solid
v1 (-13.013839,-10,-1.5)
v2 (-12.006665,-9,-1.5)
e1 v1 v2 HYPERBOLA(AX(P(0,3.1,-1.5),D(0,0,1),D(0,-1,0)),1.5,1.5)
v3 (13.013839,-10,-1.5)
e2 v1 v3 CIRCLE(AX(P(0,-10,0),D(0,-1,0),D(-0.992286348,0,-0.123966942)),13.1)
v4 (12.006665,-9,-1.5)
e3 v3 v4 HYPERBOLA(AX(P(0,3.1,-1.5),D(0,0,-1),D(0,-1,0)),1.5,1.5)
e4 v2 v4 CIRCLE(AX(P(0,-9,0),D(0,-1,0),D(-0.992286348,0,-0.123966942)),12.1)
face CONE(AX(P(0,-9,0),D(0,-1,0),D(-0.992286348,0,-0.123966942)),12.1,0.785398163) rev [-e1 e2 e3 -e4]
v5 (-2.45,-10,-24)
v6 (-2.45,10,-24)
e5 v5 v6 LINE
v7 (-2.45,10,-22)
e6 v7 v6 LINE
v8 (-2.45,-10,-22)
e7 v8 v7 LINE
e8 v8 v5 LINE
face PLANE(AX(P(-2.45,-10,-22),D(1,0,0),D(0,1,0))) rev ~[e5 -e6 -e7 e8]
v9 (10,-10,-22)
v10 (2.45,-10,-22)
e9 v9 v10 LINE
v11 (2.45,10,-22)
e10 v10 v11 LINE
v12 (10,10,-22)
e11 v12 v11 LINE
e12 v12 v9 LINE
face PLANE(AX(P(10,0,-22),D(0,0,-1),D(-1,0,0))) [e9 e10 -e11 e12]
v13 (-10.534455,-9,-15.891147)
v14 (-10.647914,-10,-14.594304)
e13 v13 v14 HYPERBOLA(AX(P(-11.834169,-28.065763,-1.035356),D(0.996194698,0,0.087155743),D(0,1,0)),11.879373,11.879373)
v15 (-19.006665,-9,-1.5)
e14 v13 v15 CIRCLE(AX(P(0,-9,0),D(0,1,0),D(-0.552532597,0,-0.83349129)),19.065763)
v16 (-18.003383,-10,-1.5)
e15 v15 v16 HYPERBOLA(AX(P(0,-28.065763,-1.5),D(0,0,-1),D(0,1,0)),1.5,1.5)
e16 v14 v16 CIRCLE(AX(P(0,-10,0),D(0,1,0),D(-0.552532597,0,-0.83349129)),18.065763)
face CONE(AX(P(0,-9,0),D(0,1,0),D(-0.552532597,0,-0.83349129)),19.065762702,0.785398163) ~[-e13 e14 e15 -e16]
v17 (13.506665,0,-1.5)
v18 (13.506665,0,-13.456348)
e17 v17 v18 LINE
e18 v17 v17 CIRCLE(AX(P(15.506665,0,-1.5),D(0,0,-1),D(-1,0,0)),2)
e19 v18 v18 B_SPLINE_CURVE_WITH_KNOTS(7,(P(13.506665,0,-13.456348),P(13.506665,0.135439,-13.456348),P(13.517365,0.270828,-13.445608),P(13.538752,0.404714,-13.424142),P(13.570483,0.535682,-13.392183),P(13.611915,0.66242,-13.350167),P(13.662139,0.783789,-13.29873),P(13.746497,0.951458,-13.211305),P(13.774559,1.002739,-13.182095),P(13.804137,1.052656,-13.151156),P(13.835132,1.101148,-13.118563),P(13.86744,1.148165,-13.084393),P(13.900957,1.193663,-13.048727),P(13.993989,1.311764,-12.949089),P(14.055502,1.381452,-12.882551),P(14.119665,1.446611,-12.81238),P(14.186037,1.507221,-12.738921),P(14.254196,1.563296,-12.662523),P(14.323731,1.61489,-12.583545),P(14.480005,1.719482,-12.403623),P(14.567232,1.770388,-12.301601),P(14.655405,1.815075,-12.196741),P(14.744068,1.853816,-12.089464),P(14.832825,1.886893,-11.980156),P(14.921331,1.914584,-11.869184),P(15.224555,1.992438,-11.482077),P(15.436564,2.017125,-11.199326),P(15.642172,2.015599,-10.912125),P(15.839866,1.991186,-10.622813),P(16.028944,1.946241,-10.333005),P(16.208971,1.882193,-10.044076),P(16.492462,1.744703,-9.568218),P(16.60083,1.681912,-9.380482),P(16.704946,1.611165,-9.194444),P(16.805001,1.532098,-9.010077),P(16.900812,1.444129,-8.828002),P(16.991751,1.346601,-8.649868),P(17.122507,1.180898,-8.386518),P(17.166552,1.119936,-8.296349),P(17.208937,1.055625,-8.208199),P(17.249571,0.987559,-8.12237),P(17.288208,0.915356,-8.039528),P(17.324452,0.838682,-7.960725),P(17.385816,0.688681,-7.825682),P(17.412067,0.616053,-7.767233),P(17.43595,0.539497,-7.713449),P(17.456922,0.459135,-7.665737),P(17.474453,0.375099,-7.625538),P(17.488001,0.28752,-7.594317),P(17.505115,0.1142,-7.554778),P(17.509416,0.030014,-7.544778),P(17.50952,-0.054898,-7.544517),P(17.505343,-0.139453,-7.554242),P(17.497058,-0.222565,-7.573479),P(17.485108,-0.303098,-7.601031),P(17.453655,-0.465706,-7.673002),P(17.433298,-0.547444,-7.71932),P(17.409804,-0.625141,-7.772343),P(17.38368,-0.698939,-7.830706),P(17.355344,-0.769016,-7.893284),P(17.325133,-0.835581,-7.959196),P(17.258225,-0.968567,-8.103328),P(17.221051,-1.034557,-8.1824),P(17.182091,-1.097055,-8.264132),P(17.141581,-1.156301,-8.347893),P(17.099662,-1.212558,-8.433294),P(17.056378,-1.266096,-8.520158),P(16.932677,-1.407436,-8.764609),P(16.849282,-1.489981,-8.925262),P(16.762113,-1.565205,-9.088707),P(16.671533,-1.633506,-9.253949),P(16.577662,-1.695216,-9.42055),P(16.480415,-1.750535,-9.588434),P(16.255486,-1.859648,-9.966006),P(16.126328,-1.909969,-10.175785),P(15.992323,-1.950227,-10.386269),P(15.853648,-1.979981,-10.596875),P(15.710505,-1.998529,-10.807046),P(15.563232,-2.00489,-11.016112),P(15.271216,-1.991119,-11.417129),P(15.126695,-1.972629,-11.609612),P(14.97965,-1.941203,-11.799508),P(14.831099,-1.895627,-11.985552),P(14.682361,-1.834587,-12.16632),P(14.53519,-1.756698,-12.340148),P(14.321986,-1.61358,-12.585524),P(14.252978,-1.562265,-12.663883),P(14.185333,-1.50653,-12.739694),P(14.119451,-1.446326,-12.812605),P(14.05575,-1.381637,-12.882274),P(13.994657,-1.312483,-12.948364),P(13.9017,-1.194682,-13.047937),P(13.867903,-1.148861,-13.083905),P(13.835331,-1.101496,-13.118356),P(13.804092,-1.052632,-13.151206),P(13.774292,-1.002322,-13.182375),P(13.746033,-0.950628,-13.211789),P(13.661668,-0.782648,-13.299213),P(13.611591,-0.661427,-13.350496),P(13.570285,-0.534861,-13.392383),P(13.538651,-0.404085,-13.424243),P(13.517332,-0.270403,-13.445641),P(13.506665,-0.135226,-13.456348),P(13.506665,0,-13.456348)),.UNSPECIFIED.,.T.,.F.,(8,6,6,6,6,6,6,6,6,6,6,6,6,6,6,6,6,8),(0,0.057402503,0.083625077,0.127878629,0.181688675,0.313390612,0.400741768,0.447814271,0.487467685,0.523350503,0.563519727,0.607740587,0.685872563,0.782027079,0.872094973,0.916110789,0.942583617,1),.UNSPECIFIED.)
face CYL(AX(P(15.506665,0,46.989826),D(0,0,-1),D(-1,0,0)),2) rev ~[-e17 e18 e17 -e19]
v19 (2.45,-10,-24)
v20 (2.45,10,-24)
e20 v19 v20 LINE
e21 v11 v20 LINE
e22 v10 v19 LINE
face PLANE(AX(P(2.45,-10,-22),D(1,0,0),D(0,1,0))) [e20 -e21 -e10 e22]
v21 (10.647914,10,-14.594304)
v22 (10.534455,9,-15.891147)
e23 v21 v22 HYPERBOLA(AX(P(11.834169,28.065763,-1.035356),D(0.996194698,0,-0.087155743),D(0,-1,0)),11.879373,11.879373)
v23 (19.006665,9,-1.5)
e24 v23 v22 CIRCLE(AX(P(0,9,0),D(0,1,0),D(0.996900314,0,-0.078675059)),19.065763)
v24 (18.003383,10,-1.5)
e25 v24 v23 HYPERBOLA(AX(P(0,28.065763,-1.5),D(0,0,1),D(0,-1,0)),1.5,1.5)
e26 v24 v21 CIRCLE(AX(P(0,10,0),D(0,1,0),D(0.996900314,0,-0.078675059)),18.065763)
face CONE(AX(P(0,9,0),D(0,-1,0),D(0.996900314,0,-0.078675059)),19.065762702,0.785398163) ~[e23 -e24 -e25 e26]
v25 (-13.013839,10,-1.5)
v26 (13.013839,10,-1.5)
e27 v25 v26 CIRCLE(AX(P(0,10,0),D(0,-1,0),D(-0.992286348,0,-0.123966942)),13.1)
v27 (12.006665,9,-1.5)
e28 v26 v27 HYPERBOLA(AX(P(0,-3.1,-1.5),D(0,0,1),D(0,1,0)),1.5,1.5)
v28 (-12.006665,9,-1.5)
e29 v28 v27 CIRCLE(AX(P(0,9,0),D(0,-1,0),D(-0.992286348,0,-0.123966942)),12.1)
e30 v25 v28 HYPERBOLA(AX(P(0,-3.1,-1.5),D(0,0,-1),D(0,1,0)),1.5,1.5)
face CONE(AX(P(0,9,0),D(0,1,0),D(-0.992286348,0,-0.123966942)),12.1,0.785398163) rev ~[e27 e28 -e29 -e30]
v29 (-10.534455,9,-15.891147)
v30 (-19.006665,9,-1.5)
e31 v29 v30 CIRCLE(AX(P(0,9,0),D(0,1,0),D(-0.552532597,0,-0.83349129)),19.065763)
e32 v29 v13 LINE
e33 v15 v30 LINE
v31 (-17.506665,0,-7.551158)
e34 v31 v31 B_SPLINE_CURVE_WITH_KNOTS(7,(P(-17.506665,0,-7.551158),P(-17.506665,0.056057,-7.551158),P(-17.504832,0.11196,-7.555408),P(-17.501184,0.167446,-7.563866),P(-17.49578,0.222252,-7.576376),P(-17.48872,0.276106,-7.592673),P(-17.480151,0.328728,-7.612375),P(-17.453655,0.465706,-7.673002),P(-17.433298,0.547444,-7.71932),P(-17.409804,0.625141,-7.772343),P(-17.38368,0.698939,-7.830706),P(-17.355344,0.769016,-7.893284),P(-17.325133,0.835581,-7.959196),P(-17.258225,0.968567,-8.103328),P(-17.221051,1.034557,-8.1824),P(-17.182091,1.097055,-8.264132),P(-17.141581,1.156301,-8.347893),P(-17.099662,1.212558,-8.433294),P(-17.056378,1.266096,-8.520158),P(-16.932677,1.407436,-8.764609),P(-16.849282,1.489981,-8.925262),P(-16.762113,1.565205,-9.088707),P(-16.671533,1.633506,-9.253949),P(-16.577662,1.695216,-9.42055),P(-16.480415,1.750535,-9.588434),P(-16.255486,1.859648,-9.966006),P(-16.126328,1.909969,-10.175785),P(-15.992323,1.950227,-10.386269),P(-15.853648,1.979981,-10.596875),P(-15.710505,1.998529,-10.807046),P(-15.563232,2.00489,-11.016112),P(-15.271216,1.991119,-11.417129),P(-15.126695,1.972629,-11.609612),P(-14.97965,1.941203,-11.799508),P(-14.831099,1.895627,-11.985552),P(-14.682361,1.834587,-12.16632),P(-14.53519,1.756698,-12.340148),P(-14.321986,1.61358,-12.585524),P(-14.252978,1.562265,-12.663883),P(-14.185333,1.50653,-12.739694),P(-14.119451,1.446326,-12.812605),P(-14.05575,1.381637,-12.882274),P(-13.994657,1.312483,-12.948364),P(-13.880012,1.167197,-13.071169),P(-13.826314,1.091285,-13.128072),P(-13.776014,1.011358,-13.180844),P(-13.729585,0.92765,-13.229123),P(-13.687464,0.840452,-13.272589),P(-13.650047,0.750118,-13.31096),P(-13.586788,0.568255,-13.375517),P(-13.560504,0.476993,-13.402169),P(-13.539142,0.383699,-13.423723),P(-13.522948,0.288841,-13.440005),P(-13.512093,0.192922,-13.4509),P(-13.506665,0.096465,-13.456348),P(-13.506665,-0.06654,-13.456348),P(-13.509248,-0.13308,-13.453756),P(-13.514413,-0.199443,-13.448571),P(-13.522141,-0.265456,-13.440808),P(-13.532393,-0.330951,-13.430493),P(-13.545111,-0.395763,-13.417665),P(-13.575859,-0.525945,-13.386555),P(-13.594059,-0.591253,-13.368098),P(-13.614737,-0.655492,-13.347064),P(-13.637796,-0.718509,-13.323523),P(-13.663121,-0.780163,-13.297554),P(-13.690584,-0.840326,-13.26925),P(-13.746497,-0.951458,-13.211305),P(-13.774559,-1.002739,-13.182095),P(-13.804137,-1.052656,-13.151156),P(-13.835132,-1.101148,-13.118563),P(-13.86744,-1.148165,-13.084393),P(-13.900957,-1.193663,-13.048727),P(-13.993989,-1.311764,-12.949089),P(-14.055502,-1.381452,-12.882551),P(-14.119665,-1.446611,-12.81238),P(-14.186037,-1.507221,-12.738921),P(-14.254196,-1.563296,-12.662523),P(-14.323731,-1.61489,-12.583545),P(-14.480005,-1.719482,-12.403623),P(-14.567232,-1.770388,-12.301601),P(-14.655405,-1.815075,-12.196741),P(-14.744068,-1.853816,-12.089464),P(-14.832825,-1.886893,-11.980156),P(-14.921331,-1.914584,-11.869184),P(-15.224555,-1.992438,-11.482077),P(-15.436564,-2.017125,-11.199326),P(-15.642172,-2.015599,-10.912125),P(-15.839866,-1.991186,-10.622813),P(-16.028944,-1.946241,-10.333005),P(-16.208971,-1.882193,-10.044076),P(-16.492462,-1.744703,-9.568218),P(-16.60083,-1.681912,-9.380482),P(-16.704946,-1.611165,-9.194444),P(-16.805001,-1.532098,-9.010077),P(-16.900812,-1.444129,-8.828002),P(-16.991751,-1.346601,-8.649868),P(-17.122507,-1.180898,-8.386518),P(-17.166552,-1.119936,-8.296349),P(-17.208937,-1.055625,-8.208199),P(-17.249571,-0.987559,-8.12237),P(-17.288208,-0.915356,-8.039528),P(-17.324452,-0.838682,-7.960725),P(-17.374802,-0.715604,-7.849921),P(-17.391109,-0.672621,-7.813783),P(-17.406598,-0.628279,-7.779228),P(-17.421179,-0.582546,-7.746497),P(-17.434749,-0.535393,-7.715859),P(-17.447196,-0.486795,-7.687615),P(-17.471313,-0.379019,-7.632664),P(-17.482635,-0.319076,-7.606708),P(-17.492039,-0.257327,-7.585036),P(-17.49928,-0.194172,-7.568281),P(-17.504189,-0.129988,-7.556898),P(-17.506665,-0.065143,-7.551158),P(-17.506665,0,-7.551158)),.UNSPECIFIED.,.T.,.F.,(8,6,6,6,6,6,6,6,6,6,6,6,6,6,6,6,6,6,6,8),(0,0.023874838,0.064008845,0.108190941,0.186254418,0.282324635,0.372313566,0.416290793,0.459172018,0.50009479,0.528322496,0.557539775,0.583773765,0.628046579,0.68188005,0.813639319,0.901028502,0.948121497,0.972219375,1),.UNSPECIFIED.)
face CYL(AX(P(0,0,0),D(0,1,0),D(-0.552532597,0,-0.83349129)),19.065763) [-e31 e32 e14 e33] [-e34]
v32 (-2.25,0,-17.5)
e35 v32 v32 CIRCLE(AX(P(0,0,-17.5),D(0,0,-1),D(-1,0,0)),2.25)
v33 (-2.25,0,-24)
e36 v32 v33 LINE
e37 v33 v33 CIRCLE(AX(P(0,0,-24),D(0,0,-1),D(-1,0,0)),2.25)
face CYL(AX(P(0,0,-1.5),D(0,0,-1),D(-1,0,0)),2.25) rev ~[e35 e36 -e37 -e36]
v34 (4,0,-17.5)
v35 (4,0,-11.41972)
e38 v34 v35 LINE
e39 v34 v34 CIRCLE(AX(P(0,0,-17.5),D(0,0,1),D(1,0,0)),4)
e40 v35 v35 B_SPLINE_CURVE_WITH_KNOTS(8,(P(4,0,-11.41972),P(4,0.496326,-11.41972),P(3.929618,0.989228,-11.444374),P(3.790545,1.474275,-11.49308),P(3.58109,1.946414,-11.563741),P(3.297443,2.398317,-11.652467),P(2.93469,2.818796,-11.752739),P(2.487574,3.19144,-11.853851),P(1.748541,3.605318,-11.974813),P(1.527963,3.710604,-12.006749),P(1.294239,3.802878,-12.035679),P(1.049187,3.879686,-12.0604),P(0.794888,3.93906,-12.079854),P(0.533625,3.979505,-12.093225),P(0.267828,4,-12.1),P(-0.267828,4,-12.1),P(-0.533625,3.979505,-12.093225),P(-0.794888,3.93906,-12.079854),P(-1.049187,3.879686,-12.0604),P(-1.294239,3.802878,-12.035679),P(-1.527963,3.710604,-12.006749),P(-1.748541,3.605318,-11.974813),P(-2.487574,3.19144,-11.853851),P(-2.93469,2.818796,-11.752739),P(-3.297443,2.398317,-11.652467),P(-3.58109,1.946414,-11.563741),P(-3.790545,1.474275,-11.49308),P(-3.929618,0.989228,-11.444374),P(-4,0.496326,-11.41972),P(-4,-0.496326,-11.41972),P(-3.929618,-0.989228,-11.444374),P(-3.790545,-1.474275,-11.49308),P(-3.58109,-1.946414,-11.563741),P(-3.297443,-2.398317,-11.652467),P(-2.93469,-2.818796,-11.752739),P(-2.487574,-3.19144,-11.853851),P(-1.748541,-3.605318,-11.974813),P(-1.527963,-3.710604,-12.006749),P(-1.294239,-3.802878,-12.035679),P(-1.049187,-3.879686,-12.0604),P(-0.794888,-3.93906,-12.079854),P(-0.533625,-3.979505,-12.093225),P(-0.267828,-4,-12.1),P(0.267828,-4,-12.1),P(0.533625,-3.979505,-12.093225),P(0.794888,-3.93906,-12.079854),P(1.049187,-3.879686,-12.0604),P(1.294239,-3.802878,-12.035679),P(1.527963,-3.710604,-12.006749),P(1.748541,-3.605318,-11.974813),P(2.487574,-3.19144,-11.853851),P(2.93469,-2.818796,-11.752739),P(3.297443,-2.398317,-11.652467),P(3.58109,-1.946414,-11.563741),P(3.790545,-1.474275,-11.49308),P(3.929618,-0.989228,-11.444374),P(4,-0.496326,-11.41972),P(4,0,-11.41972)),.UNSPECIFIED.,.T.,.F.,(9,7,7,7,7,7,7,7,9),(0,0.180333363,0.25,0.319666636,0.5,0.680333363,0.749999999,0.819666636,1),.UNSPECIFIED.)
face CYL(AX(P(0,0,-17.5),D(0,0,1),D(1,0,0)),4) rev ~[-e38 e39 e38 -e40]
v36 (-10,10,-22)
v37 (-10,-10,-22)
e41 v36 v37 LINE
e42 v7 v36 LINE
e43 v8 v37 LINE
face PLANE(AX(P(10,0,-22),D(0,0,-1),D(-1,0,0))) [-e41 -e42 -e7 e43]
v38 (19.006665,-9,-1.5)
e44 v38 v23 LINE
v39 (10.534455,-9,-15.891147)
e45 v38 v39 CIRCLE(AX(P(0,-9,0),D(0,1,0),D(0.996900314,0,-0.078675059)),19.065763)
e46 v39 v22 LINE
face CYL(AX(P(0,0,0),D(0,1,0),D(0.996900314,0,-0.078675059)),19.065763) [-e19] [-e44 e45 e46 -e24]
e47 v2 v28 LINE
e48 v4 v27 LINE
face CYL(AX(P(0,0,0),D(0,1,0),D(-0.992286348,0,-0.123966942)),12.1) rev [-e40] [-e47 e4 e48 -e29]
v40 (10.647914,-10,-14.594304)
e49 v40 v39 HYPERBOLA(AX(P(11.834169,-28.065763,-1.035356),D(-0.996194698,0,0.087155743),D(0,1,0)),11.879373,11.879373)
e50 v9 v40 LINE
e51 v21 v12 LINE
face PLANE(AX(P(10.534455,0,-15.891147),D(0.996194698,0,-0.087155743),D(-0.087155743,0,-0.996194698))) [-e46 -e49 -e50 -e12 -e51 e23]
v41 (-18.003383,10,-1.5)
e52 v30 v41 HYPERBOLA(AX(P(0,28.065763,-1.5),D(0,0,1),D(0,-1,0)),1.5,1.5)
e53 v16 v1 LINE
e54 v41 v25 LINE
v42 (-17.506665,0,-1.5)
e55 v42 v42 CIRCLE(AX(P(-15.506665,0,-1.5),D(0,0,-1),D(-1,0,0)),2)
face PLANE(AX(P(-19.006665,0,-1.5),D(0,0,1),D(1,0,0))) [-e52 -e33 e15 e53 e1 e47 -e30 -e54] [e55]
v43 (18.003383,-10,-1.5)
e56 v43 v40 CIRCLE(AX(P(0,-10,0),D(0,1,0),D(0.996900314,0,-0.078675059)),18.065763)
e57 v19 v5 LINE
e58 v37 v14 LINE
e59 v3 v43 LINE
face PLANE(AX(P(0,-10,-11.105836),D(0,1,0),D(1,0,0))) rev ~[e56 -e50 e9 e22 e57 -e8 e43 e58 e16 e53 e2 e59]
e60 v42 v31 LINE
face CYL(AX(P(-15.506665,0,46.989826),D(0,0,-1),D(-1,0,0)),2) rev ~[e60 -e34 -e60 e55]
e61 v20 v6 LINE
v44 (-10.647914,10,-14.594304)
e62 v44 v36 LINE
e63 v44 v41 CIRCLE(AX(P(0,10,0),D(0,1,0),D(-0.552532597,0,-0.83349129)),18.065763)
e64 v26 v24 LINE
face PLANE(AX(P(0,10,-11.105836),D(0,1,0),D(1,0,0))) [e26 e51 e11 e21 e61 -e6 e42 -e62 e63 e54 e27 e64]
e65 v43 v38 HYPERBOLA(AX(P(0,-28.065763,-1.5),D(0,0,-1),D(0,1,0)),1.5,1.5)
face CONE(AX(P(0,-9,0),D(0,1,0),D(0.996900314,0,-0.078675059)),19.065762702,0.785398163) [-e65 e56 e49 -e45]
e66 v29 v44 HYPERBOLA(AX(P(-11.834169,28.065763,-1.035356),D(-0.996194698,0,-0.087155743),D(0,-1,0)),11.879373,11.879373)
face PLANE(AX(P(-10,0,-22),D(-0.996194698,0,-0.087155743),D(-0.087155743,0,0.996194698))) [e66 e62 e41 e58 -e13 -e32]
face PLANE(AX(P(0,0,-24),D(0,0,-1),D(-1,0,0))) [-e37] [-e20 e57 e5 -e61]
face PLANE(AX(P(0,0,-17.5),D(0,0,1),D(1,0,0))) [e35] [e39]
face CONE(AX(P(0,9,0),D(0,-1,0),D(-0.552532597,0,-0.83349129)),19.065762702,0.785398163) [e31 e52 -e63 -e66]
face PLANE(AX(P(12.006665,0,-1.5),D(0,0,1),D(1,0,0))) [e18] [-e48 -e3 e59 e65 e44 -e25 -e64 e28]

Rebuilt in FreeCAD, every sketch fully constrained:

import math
import FreeCAD as App
import Part
import Sketcher

V = App.Vector
Q = App.Units.Quantity


def edges_at(feature, points):
    """Names of the edges that pass closest to the given points."""
    edges = feature.Shape.Edges
    near = lambda p: min(range(len(edges)), key=lambda i: edges[i].distToShape(Part.Vertex(*p))[0])
    return sorted({f"Edge{near(p) + 1}" for p in points})

doc = App.newDocument("Part")
body = doc.addObject("PartDesign::Body", "Body")

# Sketch on XZ plane
sketch1 = doc.addObject("Sketcher::SketchObject", "Sketch")
body.addObject(sketch1)
sketch1.AttachmentSupport = (doc.XZ_Plane, [""])
sketch1.MapMode = "FlatFace"
sketch1.addGeometry([
    Part.ArcOfCircle(Part.Circle(V(0, 0, 0), V(0, 0, 1), 19), math.radians(-175), math.radians(-124)),  # 0
    Part.LineSegment(V(-19, -2, 0), V(-12, -2, 0)),  # 1
    Part.ArcOfCircle(Part.Circle(V(0, 0, 0), V(0, 0, 1), 12), math.radians(-173), math.radians(-7)),  # 2
    Part.LineSegment(V(12, -2, 0), V(19, -2, 0)),  # 3
    Part.ArcOfCircle(Part.Circle(V(0, 0, 0), V(0, 0, 1), 19), math.radians(-56), math.radians(-5)),  # 4
    Part.LineSegment(V(11, -16, 0), V(10, -22, 0)),  # 5
    Part.LineSegment(V(10, -22, 0), V(-10, -22, 0)),  # 6
    Part.LineSegment(V(-10, -22, 0), V(-11, -16, 0)),  # 7
], False)
sketch1.addConstraint([
    Sketcher.Constraint("Coincident", 0, 1, 1, 1),
    Sketcher.Constraint("Coincident", 1, 2, 2, 1),
    Sketcher.Constraint("Coincident", 2, 2, 3, 1),
    Sketcher.Constraint("Coincident", 3, 2, 4, 2),
    Sketcher.Constraint("Coincident", 4, 1, 5, 1),
    Sketcher.Constraint("Coincident", 5, 2, 6, 1),
    Sketcher.Constraint("Coincident", 6, 2, 7, 1),
    Sketcher.Constraint("Coincident", 7, 2, 0, 2),
    Sketcher.Constraint("Horizontal", 1),
    Sketcher.Constraint("Horizontal", 3),
    Sketcher.Constraint("Horizontal", 6),
    Sketcher.Constraint("Coincident", 0, 3, -1, 1),
    Sketcher.Constraint("Coincident", 2, 3, -1, 1),
    Sketcher.Constraint("Coincident", 4, 3, -1, 1),
    Sketcher.Constraint("Equal", 0, 4),
    Sketcher.Constraint("Horizontal", 1, 2, 2, 2),
    Sketcher.Constraint("Horizontal", 4, 1, 7, 2),
    Sketcher.Constraint("Equal", 5, 7),
    Sketcher.Constraint("Radius", 2, Q("12.1 mm")),
    Sketcher.Constraint("DistanceX", 1, 1, 1, 2, Q("7 mm")),
    Sketcher.Constraint("DistanceX", 6, 2, 6, 1, Q("20 mm")),
    Sketcher.Constraint("Angle", 5, Q("-95 deg")),
    Sketcher.Constraint("DistanceY", 5, 2, -1, 1, Q("22 mm")),
    Sketcher.Constraint("DistanceY", 0, 1, -1, 1, Q("1.5 mm")),
])
pad1 = doc.addObject("PartDesign::Pad", "Pad")
body.addObject(pad1)
pad1.Profile = sketch1
pad1.Length = 20
pad1.Midplane = True

# Sketch on XY plane
sketch2 = doc.addObject("Sketcher::SketchObject", "Sketch001")
body.addObject(sketch2)
sketch2.AttachmentSupport = (doc.XY_Plane, [""])
sketch2.MapMode = "FlatFace"
sketch2.AttachmentOffset = App.Placement(V(0, 0, -22), App.Rotation())
sketch2.addGeometry([
    Part.LineSegment(V(2.5, 10, 0), V(2.5, -10, 0)),
    Part.LineSegment(V(2.5, -10, 0), V(-2.5, -10, 0)),
    Part.LineSegment(V(-2.5, -10, 0), V(-2.5, 10, 0)),
    Part.LineSegment(V(-2.5, 10, 0), V(2.5, 10, 0)),
], False)
sketch2.addConstraint([
    Sketcher.Constraint("Coincident", 0, 2, 1, 1),
    Sketcher.Constraint("Coincident", 1, 2, 2, 1),
    Sketcher.Constraint("Coincident", 2, 2, 3, 1),
    Sketcher.Constraint("Coincident", 3, 2, 0, 1),
    Sketcher.Constraint("Vertical", 0),
    Sketcher.Constraint("Horizontal", 1),
    Sketcher.Constraint("Vertical", 2),
    Sketcher.Constraint("Horizontal", 3),
    Sketcher.Constraint("Symmetric", 0, 2, 2, 2, -1, 1),
    Sketcher.Constraint("DistanceY", 0, 2, 0, 1, Q("20 mm")),
    Sketcher.Constraint("DistanceX", 1, 2, 1, 1, Q("4.9 mm")),
])
pad2 = doc.addObject("PartDesign::Pad", "Pad001")
body.addObject(pad2)
pad2.Profile = sketch2
pad2.Length = 2
pad2.Reversed = True

# Sketch on XY plane
sketch3 = doc.addObject("Sketcher::SketchObject", "Sketch002")
body.addObject(sketch3)
sketch3.AttachmentSupport = (doc.XY_Plane, [""])
sketch3.MapMode = "FlatFace"
sketch3.AttachmentOffset = App.Placement(V(0, 0, -1.5), App.Rotation())
sketch3.addGeometry(Part.Circle(V(0, 0, 0), V(0, 0, 1), 2.2), False)
sketch3.addConstraint([
    Sketcher.Constraint("Coincident", 0, 3, -1, 1),
    Sketcher.Constraint("Diameter", 0, Q("4.5 mm")),
])
doc.recompute()
hole = doc.addObject("PartDesign::Hole", "Hole")
body.addObject(hole)
hole.Profile = sketch3
hole.ThreadType = "None"
hole.Diameter = 4.5
hole.DepthType = "ThroughAll"
hole.HoleCutType = "Counterbore"
hole.HoleCutDiameter = 8
hole.HoleCutDepth = 16

# Sketch on XY plane
sketch4 = doc.addObject("Sketcher::SketchObject", "Sketch003")
body.addObject(sketch4)
sketch4.AttachmentSupport = (doc.XY_Plane, [""])
sketch4.MapMode = "FlatFace"
sketch4.AttachmentOffset = App.Placement(V(0, 0, -1.5), App.Rotation())
sketch4.addGeometry([
    Part.Circle(V(-15.5, 0, 0), V(0, 0, 1), 2),
    Part.Circle(V(15.5, 0, 0), V(0, 0, 1), 2),
], False)
sketch4.addConstraint([
    Sketcher.Constraint("Equal", 0, 1),
    Sketcher.Constraint("Symmetric", 0, 3, 1, 3, -1, 1),
    Sketcher.Constraint("PointOnObject", 0, 3, -1),
    Sketcher.Constraint("Diameter", 0, Q("4 mm")),
    Sketcher.Constraint("DistanceX", 0, 3, 1, 3, Q("31.01333 mm")),
])
doc.recompute()
hole2 = doc.addObject("PartDesign::Hole", "Hole001")
body.addObject(hole2)
hole2.Profile = sketch4
hole2.ThreadType = "None"
hole2.Diameter = 4
hole2.DepthType = "ThroughAll"
doc.recompute()

chamfer = doc.addObject("PartDesign::Chamfer", "Chamfer")
body.addObject(chamfer)
chamfer.Base = (hole2, edges_at(hole2, [
    (0, -10, -12.1),
    (-16.43, -10, -9.673),
    (16.43, -10, -9.673),
    (-16.43, 10, -9.673),
    (0, 10, -12.1),
    (16.43, 10, -9.673),
]))
chamfer.Size = 1

doc.recompute()
